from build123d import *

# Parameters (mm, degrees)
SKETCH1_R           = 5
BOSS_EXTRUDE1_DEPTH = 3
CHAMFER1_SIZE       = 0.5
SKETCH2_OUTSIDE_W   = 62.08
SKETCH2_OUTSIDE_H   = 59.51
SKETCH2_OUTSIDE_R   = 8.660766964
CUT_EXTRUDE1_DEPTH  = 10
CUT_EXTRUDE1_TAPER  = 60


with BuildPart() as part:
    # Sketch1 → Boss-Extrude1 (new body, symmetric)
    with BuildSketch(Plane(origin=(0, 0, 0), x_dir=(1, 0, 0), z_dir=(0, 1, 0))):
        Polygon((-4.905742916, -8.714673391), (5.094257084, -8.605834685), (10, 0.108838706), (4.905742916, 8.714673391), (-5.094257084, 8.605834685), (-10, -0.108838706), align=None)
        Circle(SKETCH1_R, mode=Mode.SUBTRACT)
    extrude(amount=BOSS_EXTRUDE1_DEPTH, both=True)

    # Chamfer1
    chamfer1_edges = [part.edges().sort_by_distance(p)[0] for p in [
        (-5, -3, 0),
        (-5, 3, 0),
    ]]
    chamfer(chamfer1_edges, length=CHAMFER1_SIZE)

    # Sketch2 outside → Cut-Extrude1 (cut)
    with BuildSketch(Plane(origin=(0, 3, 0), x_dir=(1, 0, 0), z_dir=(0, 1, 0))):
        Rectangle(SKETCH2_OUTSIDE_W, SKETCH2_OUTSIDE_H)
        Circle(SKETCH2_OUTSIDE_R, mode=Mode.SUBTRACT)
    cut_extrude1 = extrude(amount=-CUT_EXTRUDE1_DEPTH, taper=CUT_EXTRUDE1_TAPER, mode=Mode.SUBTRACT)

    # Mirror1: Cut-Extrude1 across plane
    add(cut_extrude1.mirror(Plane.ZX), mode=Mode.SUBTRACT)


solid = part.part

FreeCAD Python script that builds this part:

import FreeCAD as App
import Part
import Sketcher
from FreeCAD import Vector


def edges_at(feature, points):
    """Names of the edges that pass closest to the given points."""
    edges = feature.Shape.Edges
    near = lambda p: min(range(len(edges)), key=lambda i: edges[i].distToShape(Part.Vertex(*p))[0])
    return sorted({f"Edge{near(p) + 1}" for p in points})

doc = App.newDocument("Part")
params = doc.addObject("Spreadsheet::Sheet", "Params")
for row, (alias, value) in enumerate([
    ("sketch1_diameter", "10 mm"),
    ("pad1_length", "6 mm"),
    ("chamfer_size", "0.5 mm"),
    ("sketch2_width", "62.08 mm"),
    ("sketch2_height", "59.51 mm"),
    ("pocket1_length", "10 mm"),
    ("pocket1_taper", "60 deg"),
], start=1):
    params.set(f"A{row}", alias)
    params.set(f"B{row}", "=" + value)
    params.setAlias(f"B{row}", alias)

body = doc.addObject("PartDesign::Body", "Body")

# Sketch on XZ plane
sketch1 = body.newObject("Sketcher::SketchObject", "Sketch")
sketch1.AttachmentSupport = (doc.getObject("XZ_Plane"), [""])
sketch1.MapMode = "FlatFace"
sketch1.addGeometry([
    Part.LineSegment(Vector(-4.905743, 8.714673, 0), Vector(5.094257, 8.605835, 0)),  # 0
    Part.LineSegment(Vector(5.094257, 8.605835, 0), Vector(10, -0.108839, 0)),  # 1
    Part.LineSegment(Vector(10, -0.108839, 0), Vector(4.905743, -8.714673, 0)),  # 2
    Part.LineSegment(Vector(4.905743, -8.714673, 0), Vector(-5.094257, -8.605835, 0)),  # 3
    Part.LineSegment(Vector(-5.094257, -8.605835, 0), Vector(-10, 0.108839, 0)),  # 4
    Part.LineSegment(Vector(-10, 0.108839, 0), Vector(-4.905743, 8.714673, 0)),  # 5
    Part.Circle(Vector(0, 0, 0), Vector(0, 0, 1), 5),  # 6
], False)
sketch1.addConstraint([
    Sketcher.Constraint("Coincident", 0, 2, 1, 1),
    Sketcher.Constraint("Coincident", 1, 2, 2, 1),
    Sketcher.Constraint("Coincident", 2, 2, 3, 1),
    Sketcher.Constraint("Coincident", 3, 2, 4, 1),
    Sketcher.Constraint("Coincident", 4, 2, 5, 1),
    Sketcher.Constraint("Coincident", 5, 2, 0, 1),
    Sketcher.Constraint("Coincident", 6, 3, -1, 1),
    Sketcher.Constraint("Symmetric", 0, 2, 3, 2, -1, 1),
    Sketcher.Constraint("Symmetric", 1, 2, 4, 2, -1, 1),
    Sketcher.Constraint("Symmetric", 2, 2, 5, 2, -1, 1),
    Sketcher.Constraint("Equal", 0, 1),
    Sketcher.Constraint("Equal", 1, 2),
    Sketcher.Constraint("Diameter", 6, 10.0),
    Sketcher.Constraint("DistanceX", -1, 1, 1, 2, 10.0),
    Sketcher.Constraint("DistanceX", 3, 2, 2, 2, 10.0),
    Sketcher.Constraint("DistanceY", 1, 2, -1, 1, 0.108839),
    Sketcher.Constraint("DistanceY", 2, 2, 0, 2, 17.320508),
])
sketch1.setExpression("Constraints[12]", "Params.sketch1_diameter")
pad1 = body.newObject("PartDesign::Pad", "Pad")
pad1.Profile = sketch1
pad1.setExpression("Length", "Params.pad1_length")
pad1.Midplane = True
doc.recompute()

chamfer = body.newObject("PartDesign::Chamfer", "Chamfer")
chamfer.Base = (pad1, edges_at(pad1, [(-5, -3, 0), (-5, 3, 0)]))
chamfer.setExpression("Size", "Params.chamfer_size")

# Sketch on XZ plane
sketch2 = body.newObject("Sketcher::SketchObject", "Sketch001")
sketch2.AttachmentSupport = (doc.getObject("XZ_Plane"), [""])
sketch2.MapMode = "FlatFace"
sketch2.AttachmentOffset = App.Placement(Vector(0, 0, -3), App.Rotation())
sketch2.addGeometry([
    Part.LineSegment(Vector(-31.04, -29.755, 0), Vector(-31.04, 29.755, 0)),  # 0
    Part.LineSegment(Vector(-31.04, 29.755, 0), Vector(31.04, 29.755, 0)),  # 1
    Part.LineSegment(Vector(31.04, 29.755, 0), Vector(31.04, -29.755, 0)),  # 2
    Part.LineSegment(Vector(31.04, -29.755, 0), Vector(-31.04, -29.755, 0)),  # 3
    Part.Circle(Vector(0, 0, 0), Vector(0, 0, 1), 8.660767),  # 4
], False)
sketch2.addConstraint([
    Sketcher.Constraint("Coincident", 0, 2, 1, 1),
    Sketcher.Constraint("Coincident", 1, 2, 2, 1),
    Sketcher.Constraint("Coincident", 2, 2, 3, 1),
    Sketcher.Constraint("Coincident", 3, 2, 0, 1),
    Sketcher.Constraint("Vertical", 0),
    Sketcher.Constraint("Horizontal", 1),
    Sketcher.Constraint("Vertical", 2),
    Sketcher.Constraint("Horizontal", 3),
    Sketcher.Constraint("Coincident", 4, 3, -1, 1),
    Sketcher.Constraint("Symmetric", 0, 2, 2, 2, -1, 1),
    Sketcher.Constraint("DistanceX", 1, 1, 1, 2, 62.08),
    Sketcher.Constraint("DistanceY", 0, 1, 0, 2, 59.51),
    Sketcher.Constraint("Diameter", 4, 17.321534),
])
sketch2.setExpression("Constraints[10]", "Params.sketch2_width")
sketch2.setExpression("Constraints[11]", "Params.sketch2_height")
pocket1 = body.newObject("PartDesign::Pocket", "Pocket")
pocket1.Profile = sketch2
pocket1.setExpression("Length", "Params.pocket1_length")
pocket1.Reversed = True
pocket1.setExpression("TaperAngle", "Params.pocket1_taper")
doc.recompute()

mirrored = body.newObject("PartDesign::Mirrored", "Mirrored")
mirrored.Originals = [pocket1]
mirrored.MirrorPlane = (doc.getObject("XZ_Plane"), [""])
body.Tip = mirrored

doc.recompute()
